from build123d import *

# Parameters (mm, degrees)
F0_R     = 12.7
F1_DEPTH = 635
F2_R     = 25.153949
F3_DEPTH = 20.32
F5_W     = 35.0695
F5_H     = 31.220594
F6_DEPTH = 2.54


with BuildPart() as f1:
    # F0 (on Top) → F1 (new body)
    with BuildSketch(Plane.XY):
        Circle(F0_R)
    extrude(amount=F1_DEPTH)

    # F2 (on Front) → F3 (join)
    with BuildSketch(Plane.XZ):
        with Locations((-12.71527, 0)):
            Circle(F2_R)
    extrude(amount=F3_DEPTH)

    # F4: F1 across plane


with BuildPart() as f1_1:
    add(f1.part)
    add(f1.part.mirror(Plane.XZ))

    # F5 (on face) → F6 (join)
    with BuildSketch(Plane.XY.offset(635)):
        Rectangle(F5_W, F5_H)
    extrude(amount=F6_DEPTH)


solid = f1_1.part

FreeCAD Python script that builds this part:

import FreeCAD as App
import Part
import Sketcher
Q = App.Units.Quantity

doc = App.newDocument("Part")
body = doc.addObject("PartDesign::Body", "Body")

sketch1 = doc.addObject("Sketcher::SketchObject", "Sketch")
body.addObject(sketch1)
sketch1.AttachmentSupport = (doc.XY_Plane, [""])
sketch1.MapMode = "FlatFace"
sketch1.addGeometry(Part.Circle(App.Vector(0, 0, 0), App.Vector(0, 0, 1), 12.7), False)
sketch1.addConstraint(Sketcher.Constraint("Coincident", 0, 3, -1, 1))
sketch1.addConstraint(Sketcher.Constraint("Diameter", 0, Q("1 in")))
pad1 = doc.addObject("PartDesign::Pad", "Pad")
body.addObject(pad1)
pad1.Profile = sketch1
pad1.Length = Q("25 in")

sketch2 = doc.addObject("Sketcher::SketchObject", "Sketch001")
body.addObject(sketch2)
sketch2.AttachmentSupport = (doc.XZ_Plane, [""])
sketch2.MapMode = "FlatFace"
sketch2.addGeometry(Part.Circle(App.Vector(-12.71527, 0, 0), App.Vector(0, 0, 1), 25.153949), False)
sketch2.addConstraint(Sketcher.Constraint("PointOnObject", 0, 3, -1))
sketch2.addConstraint(Sketcher.Constraint("Diameter", 0, Q("50.307898 mm")))
sketch2.addConstraint(Sketcher.Constraint("DistanceX", 0, 3, -1, 1, Q("12.71527 mm")))
pad2 = doc.addObject("PartDesign::Pad", "Pad001")
body.addObject(pad2)
pad2.Profile = sketch2
pad2.Length = Q("0.8 in")
body2 = doc.addObject("PartDesign::Body", "Body001")
doc.recompute()

body2.BaseFeature = body
doc.recompute()

mirroring = doc.addObject("Part::Mirroring", "Mirroring")
mirroring.Source = body
mirroring.Base = App.Vector(0, 0, 0)
mirroring.Normal = App.Vector(0, -1, 0)
body3 = doc.addObject("PartDesign::Body", "Body002")
body3.BaseFeature = mirroring
boolean = doc.addObject("PartDesign::Boolean", "Boolean")
body2.addObject(boolean)
boolean.Type = "Fuse"
boolean.addObjects([body3])
doc.recompute()

sketch3 = doc.addObject("Sketcher::SketchObject", "Sketch002")
body2.addObject(sketch3)
sketch3.AttachmentSupport = (doc.getObject("XY_Plane001"), [""])
sketch3.MapMode = "FlatFace"
sketch3.AttachmentOffset = App.Placement(App.Vector(0, 0, 25 * 25.4), App.Rotation())
sketch3.addGeometry(Part.LineSegment(App.Vector(-17.53475, 15.610297, 0), App.Vector(-17.53475, -15.610297, 0)), False)
sketch3.addGeometry(Part.LineSegment(App.Vector(-17.53475, -15.610297, 0), App.Vector(17.53475, -15.610297, 0)), False)
sketch3.addGeometry(Part.LineSegment(App.Vector(17.53475, -15.610297, 0), App.Vector(17.53475, 15.610297, 0)), False)
sketch3.addGeometry(Part.LineSegment(App.Vector(17.53475, 15.610297, 0), App.Vector(-17.53475, 15.610297, 0)), False)
sketch3.addConstraint(Sketcher.Constraint("Coincident", 0, 2, 1, 1))
sketch3.addConstraint(Sketcher.Constraint("Coincident", 1, 2, 2, 1))
sketch3.addConstraint(Sketcher.Constraint("Coincident", 2, 2, 3, 1))
sketch3.addConstraint(Sketcher.Constraint("Coincident", 3, 2, 0, 1))
sketch3.addConstraint(Sketcher.Constraint("Vertical", 0))
sketch3.addConstraint(Sketcher.Constraint("Horizontal", 1))
sketch3.addConstraint(Sketcher.Constraint("Vertical", 2))
sketch3.addConstraint(Sketcher.Constraint("Horizontal", 3))
sketch3.addConstraint(Sketcher.Constraint("Symmetric", 0, 2, 2, 2, -1, 1))
sketch3.addConstraint(Sketcher.Constraint("DistanceX", 1, 1, 1, 2, Q("35.0695 mm")))
sketch3.addConstraint(Sketcher.Constraint("DistanceY", 0, 2, 0, 1, Q("31.220594 mm")))
pad3 = doc.addObject("PartDesign::Pad", "Pad002")
body2.addObject(pad3)
pad3.Profile = sketch3
pad3.Length = Q("0.1 in")
mirroring.Visibility = False

doc.recompute()
